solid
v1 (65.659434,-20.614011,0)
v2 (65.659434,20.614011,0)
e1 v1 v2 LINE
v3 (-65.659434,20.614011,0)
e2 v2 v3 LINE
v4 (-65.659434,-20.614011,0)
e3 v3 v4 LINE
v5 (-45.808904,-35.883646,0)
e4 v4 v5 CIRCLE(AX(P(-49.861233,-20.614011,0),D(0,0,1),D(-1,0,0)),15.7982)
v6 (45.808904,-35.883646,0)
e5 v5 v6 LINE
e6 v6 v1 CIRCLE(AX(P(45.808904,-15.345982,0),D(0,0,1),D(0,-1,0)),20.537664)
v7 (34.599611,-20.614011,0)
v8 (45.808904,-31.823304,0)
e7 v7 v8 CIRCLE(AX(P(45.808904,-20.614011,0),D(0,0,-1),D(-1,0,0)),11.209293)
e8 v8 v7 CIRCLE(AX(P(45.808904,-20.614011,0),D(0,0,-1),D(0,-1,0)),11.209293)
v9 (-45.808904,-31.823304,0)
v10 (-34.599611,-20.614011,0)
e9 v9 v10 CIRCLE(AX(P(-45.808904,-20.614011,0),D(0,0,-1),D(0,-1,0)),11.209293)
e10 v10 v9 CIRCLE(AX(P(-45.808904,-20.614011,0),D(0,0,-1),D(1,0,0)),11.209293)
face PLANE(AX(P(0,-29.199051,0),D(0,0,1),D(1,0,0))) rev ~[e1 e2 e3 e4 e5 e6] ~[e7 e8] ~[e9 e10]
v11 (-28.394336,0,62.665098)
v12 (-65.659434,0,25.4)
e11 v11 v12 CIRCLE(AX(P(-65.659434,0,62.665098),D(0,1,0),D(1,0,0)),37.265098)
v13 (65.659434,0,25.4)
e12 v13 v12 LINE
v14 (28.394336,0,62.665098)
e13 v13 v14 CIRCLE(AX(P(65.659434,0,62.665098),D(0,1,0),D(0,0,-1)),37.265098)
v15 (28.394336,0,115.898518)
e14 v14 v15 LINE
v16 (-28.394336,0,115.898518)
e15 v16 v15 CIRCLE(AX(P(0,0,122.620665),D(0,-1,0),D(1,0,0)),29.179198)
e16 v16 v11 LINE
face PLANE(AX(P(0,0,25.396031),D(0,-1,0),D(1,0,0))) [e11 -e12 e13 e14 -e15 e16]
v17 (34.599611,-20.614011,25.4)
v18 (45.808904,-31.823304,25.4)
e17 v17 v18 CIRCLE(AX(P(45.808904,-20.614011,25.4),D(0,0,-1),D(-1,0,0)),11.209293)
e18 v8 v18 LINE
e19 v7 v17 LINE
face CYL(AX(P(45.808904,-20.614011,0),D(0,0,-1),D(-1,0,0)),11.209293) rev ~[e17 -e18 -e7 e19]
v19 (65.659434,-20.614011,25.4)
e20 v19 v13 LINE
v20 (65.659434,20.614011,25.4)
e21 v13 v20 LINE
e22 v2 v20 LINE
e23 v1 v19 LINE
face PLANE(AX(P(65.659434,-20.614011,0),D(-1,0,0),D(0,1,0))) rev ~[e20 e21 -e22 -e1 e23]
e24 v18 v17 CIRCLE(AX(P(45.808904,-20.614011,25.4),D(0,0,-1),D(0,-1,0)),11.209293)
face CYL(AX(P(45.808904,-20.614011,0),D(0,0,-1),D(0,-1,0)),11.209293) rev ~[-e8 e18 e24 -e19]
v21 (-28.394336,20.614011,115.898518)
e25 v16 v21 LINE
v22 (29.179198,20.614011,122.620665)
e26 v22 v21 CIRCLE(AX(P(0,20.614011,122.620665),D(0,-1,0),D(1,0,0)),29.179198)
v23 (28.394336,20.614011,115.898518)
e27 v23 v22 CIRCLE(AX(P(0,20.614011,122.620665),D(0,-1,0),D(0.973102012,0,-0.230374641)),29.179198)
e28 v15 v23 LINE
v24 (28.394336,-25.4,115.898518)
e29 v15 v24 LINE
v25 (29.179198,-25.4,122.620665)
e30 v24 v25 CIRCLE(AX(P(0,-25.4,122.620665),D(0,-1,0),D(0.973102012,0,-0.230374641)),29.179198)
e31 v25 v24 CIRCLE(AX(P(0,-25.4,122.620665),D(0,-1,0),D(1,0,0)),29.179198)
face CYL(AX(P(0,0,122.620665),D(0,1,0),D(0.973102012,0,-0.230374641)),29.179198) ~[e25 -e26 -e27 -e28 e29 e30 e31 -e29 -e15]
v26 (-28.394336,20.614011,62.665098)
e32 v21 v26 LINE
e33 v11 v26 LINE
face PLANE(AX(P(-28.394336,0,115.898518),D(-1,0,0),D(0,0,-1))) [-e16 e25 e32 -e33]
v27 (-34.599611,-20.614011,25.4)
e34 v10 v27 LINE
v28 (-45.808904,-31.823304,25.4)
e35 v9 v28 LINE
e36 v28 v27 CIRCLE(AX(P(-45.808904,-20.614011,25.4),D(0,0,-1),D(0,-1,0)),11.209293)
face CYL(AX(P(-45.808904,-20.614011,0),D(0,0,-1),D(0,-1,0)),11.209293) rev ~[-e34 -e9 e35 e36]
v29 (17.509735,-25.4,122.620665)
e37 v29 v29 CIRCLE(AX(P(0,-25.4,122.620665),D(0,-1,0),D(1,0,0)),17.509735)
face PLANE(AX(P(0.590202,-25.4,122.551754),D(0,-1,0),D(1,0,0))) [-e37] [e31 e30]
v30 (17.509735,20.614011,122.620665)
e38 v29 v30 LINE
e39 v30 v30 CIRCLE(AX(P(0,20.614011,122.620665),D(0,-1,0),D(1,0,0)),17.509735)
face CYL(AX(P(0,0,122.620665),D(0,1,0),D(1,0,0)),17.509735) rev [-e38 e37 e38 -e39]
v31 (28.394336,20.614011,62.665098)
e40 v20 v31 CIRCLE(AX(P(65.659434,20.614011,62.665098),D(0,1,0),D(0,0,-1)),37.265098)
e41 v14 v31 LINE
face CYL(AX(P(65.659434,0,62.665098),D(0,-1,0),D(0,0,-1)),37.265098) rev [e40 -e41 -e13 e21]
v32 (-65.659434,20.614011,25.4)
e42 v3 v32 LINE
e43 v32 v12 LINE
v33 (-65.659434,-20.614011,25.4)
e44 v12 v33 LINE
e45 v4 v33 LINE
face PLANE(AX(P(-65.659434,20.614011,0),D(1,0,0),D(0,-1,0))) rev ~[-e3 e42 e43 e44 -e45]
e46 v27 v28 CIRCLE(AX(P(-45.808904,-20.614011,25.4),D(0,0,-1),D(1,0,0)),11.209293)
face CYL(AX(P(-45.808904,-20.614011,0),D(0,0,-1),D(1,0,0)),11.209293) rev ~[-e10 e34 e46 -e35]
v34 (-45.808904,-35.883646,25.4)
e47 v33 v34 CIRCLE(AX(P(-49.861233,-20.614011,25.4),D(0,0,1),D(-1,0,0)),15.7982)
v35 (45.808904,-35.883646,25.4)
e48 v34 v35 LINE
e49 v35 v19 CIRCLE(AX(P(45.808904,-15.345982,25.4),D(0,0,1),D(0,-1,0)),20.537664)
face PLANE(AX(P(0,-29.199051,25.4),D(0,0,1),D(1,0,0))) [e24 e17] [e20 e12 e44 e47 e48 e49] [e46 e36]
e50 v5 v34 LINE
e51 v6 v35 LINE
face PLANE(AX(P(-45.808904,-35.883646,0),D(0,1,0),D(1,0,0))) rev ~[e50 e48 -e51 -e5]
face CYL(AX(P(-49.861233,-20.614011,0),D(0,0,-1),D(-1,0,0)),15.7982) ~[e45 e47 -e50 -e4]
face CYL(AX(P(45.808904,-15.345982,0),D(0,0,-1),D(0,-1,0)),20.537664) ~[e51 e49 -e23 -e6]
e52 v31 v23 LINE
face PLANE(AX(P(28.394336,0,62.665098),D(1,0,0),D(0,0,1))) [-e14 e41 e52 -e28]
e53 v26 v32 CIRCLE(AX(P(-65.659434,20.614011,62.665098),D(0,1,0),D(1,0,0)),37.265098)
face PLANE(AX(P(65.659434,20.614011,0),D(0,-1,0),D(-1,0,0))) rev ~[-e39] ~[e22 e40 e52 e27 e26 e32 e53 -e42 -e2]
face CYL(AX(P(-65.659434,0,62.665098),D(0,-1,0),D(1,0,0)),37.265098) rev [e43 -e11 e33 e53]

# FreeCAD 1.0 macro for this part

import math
import FreeCAD as App
import Part
import Sketcher

V = App.Vector
Q = App.Units.Quantity

doc = App.newDocument("Part")
body = doc.addObject("PartDesign::Body", "Body")

# Sketch on XY plane
sketch1 = body.newObject("Sketcher::SketchObject", "Sketch")
sketch1.AttachmentSupport = (doc.getObject("XY_Plane"), [""])
sketch1.MapMode = "FlatFace"
sketch1.addGeometry(Part.LineSegment(V(-46, -36, 0), V(46, -36, 0)), False)
sketch1.addGeometry(Part.ArcOfCircle(Part.Circle(V(46, -15, 0), V(0, 0, 1), 21), math.radians(-90), math.radians(-15)), False)
sketch1.addGeometry(Part.LineSegment(V(66, -21, 0), V(66, 21, 0)), False)
sketch1.addGeometry(Part.LineSegment(V(66, 21, 0), V(-66, 21, 0)), False)
sketch1.addGeometry(Part.LineSegment(V(-66, 21, 0), V(-66, -21, 0)), False)
sketch1.addGeometry(Part.ArcOfCircle(Part.Circle(V(-50, -21, 0), V(0, 0, 1), 16), math.radians(180), math.radians(285)), False)
sketch1.addGeometry(Part.ArcOfCircle(Part.Circle(V(46, -21, 0), V(0, 0, 1), 11), math.radians(180), math.radians(270)), False)
sketch1.addGeometry(Part.ArcOfCircle(Part.Circle(V(46, -21, 0), V(0, 0, 1), 11), math.radians(-90), math.radians(180)), False)
sketch1.addGeometry(Part.ArcOfCircle(Part.Circle(V(-46, -21, 0), V(0, 0, 1), 11), math.radians(-90), math.radians(0)), False)
sketch1.addGeometry(Part.ArcOfCircle(Part.Circle(V(-46, -21, 0), V(0, 0, 1), 11), math.radians(0), math.radians(270)), False)
sketch1.addConstraint(Sketcher.Constraint("Tangent", 0, 2, 1, 1))
sketch1.addConstraint(Sketcher.Constraint("Coincident", 1, 2, 2, 1))
sketch1.addConstraint(Sketcher.Constraint("Coincident", 2, 2, 3, 1))
sketch1.addConstraint(Sketcher.Constraint("Coincident", 3, 2, 4, 1))
sketch1.addConstraint(Sketcher.Constraint("Tangent", 4, 2, 5, 1))
sketch1.addConstraint(Sketcher.Constraint("Coincident", 5, 2, 0, 1))
sketch1.addConstraint(Sketcher.Constraint("Tangent", 6, 1, 7, 2))
sketch1.addConstraint(Sketcher.Constraint("Coincident", 7, 1, 6, 2))
sketch1.addConstraint(Sketcher.Constraint("Tangent", 8, 1, 9, 2))
sketch1.addConstraint(Sketcher.Constraint("Coincident", 9, 1, 8, 2))
sketch1.addConstraint(Sketcher.Constraint("Horizontal", 0))
sketch1.addConstraint(Sketcher.Constraint("Vertical", 2))
sketch1.addConstraint(Sketcher.Constraint("Horizontal", 3))
sketch1.addConstraint(Sketcher.Constraint("Vertical", 4))
sketch1.addConstraint(Sketcher.Constraint("Equal", 7, 8))
sketch1.addConstraint(Sketcher.Constraint("Symmetric", 1, 2, 3, 2, -1, 1))
sketch1.addConstraint(Sketcher.Constraint("Symmetric", 6, 3, 8, 3, -2))
sketch1.addConstraint(Sketcher.Constraint("Horizontal", 5, 3, 6, 3))
sketch1.addConstraint(Sketcher.Constraint("Horizontal", 9, 3, 1, 2))
sketch1.addConstraint(Sketcher.Constraint("Horizontal", 4, 2, 6, 1))
sketch1.addConstraint(Sketcher.Constraint("Horizontal", 6, 1, 9, 1))
sketch1.addConstraint(Sketcher.Constraint("Vertical", 1, 3, 6, 3))
sketch1.addConstraint(Sketcher.Constraint("Vertical", 9, 3, 5, 2))
sketch1.addConstraint(Sketcher.Constraint("Vertical", 0, 2, 7, 1))
sketch1.addConstraint(Sketcher.Constraint("Vertical", 5, 2, 8, 1))
sketch1.addConstraint(Sketcher.Constraint("Radius", 5, 15.7982))
sketch1.addConstraint(Sketcher.Constraint("DistanceX", -1, 1, 1, 3, Q("1.8035002 in")))
sketch1.addConstraint(Sketcher.Constraint("Radius", 1, 20.537664))
sketch1.addConstraint(Sketcher.Constraint("Radius", 6, 11.209293))
sketch1.addConstraint(Sketcher.Constraint("DistanceY", 2, 1, 2, 2, 41.228022))
pad1 = body.newObject("PartDesign::Pad", "Pad")
pad1.Profile = sketch1
pad1.Length = Q("1 in")

# Sketch on XZ plane
sketch2 = body.newObject("Sketcher::SketchObject", "Sketch001")
sketch2.AttachmentSupport = (doc.getObject("XZ_Plane"), [""])
sketch2.MapMode = "FlatFace"
sketch2.addGeometry(Part.LineSegment(V(-28.394, 25.392, 0), V(28.394, 25.392, 0)), False)
sketch2.addGeometry(Part.LineSegment(V(28.394, 25.392, 0), V(28.394, 25.4, 0)), False)
sketch2.addGeometry(Part.LineSegment(V(28.394, 25.4, 0), V(65.659, 25.4, 0)), False)
sketch2.addGeometry(Part.ArcOfCircle(Part.Circle(V(65.659, 62.665, 0), V(0, 0, 1), 37.265), math.radians(180), math.radians(270)), False)
sketch2.addGeometry(Part.LineSegment(V(28.394, 62.665, 0), V(28.394, 115.899, 0)), False)
sketch2.addGeometry(Part.ArcOfCircle(Part.Circle(V(0, 122.621, 0), V(0, 0, 1), 29.179), math.radians(-13.32), math.radians(0)), False)
sketch2.addGeometry(Part.ArcOfCircle(Part.Circle(V(0, 122.621, 0), V(0, 0, 1), 29.179), math.radians(0), math.radians(193)), False)
sketch2.addGeometry(Part.LineSegment(V(-28.394, 115.899, 0), V(-28.394, 62.665, 0)), False)
sketch2.addGeometry(Part.ArcOfCircle(Part.Circle(V(-65.659, 62.665, 0), V(0, 0, 1), 37.265), math.radians(-90), math.radians(0)), False)
sketch2.addGeometry(Part.LineSegment(V(-65.659, 25.4, 0), V(-28.394, 25.4, 0)), False)
sketch2.addGeometry(Part.LineSegment(V(-28.394, 25.4, 0), V(-28.394, 25.392, 0)), False)
sketch2.addGeometry(Part.Circle(V(0, 122.621, 0), V(0, 0, 1), 17.51), False)
sketch2.addConstraint(Sketcher.Constraint("Coincident", 0, 2, 1, 1))
sketch2.addConstraint(Sketcher.Constraint("Coincident", 1, 2, 2, 1))
sketch2.addConstraint(Sketcher.Constraint("Tangent", 2, 2, 3, 2))
sketch2.addConstraint(Sketcher.Constraint("Tangent", 3, 1, 4, 1))
sketch2.addConstraint(Sketcher.Constraint("Coincident", 4, 2, 5, 1))
sketch2.addConstraint(Sketcher.Constraint("Tangent", 5, 2, 6, 1))
sketch2.addConstraint(Sketcher.Constraint("Coincident", 6, 2, 7, 1))
sketch2.addConstraint(Sketcher.Constraint("Tangent", 7, 2, 8, 2))
sketch2.addConstraint(Sketcher.Constraint("Tangent", 8, 1, 9, 1))
sketch2.addConstraint(Sketcher.Constraint("Coincident", 9, 2, 10, 1))
sketch2.addConstraint(Sketcher.Constraint("Coincident", 10, 2, 0, 1))
sketch2.addConstraint(Sketcher.Constraint("Horizontal", 0))
sketch2.addConstraint(Sketcher.Constraint("Vertical", 1))
sketch2.addConstraint(Sketcher.Constraint("Horizontal", 2))
sketch2.addConstraint(Sketcher.Constraint("Vertical", 4))
sketch2.addConstraint(Sketcher.Constraint("Vertical", 7))
sketch2.addConstraint(Sketcher.Constraint("Horizontal", 9))
sketch2.addConstraint(Sketcher.Constraint("Vertical", 10))
sketch2.addConstraint(Sketcher.Constraint("Coincident", 11, 3, 5, 3))
sketch2.addConstraint(Sketcher.Constraint("Equal", 5, 6))
sketch2.addConstraint(Sketcher.Constraint("Equal", 3, 8))
sketch2.addConstraint(Sketcher.Constraint("Symmetric", 3, 3, 8, 3, -2))
sketch2.addConstraint(Sketcher.Constraint("PointOnObject", 5, 3, -2))
sketch2.addConstraint(Sketcher.Constraint("Horizontal", 11, 3, 5, 2))
sketch2.addConstraint(Sketcher.Constraint("Vertical", 1, 2, 3, 1))
sketch2.addConstraint(Sketcher.Constraint("Vertical", 7, 2, 9, 2))
sketch2.addConstraint(Sketcher.Constraint("DistanceY", -1, 1, 1, 2, Q("1 in")))
sketch2.addConstraint(Sketcher.Constraint("Diameter", 11, 35.019469))
sketch2.addConstraint(Sketcher.Constraint("Radius", 3, 37.265098))
sketch2.addConstraint(Sketcher.Constraint("Radius", 5, 29.179198))
sketch2.addConstraint(Sketcher.Constraint("DistanceX", 4, 2, 5, 2, Q("0.0309001 in")))
sketch2.addConstraint(Sketcher.Constraint("DistanceY", 4, 1, 4, 2, 53.23342))
sketch2.addConstraint(Sketcher.Constraint("DistanceY", 1, 1, 1, 2, 0.007938))
pad2 = body.newObject("PartDesign::Pad", "Pad001")
pad2.Profile = sketch2
pad2.Length = 20.614011
pad2.Reversed = True

# Sketch on XZ plane
sketch3 = body.newObject("Sketcher::SketchObject", "Sketch002")
sketch3.AttachmentSupport = (doc.getObject("XZ_Plane"), [""])
sketch3.MapMode = "FlatFace"
sketch3.addGeometry(Part.ArcOfCircle(Part.Circle(V(0, 123, 0), V(0, 0, 1), 29), math.radians(-13.32), math.radians(0)), False)
sketch3.addGeometry(Part.ArcOfCircle(Part.Circle(V(0, 123, 0), V(0, 0, 1), 29), math.radians(0), math.radians(347)), False)
sketch3.addGeometry(Part.Circle(V(0, 123, 0), V(0, 0, 1), 18), False)
sketch3.addConstraint(Sketcher.Constraint("Tangent", 0, 1, 1, 2))
sketch3.addConstraint(Sketcher.Constraint("Coincident", 1, 1, 0, 2))
sketch3.addConstraint(Sketcher.Constraint("Coincident", 2, 3, 0, 3))
sketch3.addConstraint(Sketcher.Constraint("PointOnObject", 0, 3, -2))
sketch3.addConstraint(Sketcher.Constraint("Horizontal", 2, 3, 1, 1))
sketch3.addConstraint(Sketcher.Constraint("Diameter", 2, 35.019469))
sketch3.addConstraint(Sketcher.Constraint("Radius", 0, 29.179198))
sketch3.addConstraint(Sketcher.Constraint("DistanceX", 0, 1, 1, 1, Q("0.0309001 in")))
sketch3.addConstraint(Sketcher.Constraint("DistanceY", -1, 1, 0, 3, 122.620665))
pad3 = body.newObject("PartDesign::Pad", "Pad002")
pad3.Profile = sketch3
pad3.Length = Q("1 in")

doc.recompute()
